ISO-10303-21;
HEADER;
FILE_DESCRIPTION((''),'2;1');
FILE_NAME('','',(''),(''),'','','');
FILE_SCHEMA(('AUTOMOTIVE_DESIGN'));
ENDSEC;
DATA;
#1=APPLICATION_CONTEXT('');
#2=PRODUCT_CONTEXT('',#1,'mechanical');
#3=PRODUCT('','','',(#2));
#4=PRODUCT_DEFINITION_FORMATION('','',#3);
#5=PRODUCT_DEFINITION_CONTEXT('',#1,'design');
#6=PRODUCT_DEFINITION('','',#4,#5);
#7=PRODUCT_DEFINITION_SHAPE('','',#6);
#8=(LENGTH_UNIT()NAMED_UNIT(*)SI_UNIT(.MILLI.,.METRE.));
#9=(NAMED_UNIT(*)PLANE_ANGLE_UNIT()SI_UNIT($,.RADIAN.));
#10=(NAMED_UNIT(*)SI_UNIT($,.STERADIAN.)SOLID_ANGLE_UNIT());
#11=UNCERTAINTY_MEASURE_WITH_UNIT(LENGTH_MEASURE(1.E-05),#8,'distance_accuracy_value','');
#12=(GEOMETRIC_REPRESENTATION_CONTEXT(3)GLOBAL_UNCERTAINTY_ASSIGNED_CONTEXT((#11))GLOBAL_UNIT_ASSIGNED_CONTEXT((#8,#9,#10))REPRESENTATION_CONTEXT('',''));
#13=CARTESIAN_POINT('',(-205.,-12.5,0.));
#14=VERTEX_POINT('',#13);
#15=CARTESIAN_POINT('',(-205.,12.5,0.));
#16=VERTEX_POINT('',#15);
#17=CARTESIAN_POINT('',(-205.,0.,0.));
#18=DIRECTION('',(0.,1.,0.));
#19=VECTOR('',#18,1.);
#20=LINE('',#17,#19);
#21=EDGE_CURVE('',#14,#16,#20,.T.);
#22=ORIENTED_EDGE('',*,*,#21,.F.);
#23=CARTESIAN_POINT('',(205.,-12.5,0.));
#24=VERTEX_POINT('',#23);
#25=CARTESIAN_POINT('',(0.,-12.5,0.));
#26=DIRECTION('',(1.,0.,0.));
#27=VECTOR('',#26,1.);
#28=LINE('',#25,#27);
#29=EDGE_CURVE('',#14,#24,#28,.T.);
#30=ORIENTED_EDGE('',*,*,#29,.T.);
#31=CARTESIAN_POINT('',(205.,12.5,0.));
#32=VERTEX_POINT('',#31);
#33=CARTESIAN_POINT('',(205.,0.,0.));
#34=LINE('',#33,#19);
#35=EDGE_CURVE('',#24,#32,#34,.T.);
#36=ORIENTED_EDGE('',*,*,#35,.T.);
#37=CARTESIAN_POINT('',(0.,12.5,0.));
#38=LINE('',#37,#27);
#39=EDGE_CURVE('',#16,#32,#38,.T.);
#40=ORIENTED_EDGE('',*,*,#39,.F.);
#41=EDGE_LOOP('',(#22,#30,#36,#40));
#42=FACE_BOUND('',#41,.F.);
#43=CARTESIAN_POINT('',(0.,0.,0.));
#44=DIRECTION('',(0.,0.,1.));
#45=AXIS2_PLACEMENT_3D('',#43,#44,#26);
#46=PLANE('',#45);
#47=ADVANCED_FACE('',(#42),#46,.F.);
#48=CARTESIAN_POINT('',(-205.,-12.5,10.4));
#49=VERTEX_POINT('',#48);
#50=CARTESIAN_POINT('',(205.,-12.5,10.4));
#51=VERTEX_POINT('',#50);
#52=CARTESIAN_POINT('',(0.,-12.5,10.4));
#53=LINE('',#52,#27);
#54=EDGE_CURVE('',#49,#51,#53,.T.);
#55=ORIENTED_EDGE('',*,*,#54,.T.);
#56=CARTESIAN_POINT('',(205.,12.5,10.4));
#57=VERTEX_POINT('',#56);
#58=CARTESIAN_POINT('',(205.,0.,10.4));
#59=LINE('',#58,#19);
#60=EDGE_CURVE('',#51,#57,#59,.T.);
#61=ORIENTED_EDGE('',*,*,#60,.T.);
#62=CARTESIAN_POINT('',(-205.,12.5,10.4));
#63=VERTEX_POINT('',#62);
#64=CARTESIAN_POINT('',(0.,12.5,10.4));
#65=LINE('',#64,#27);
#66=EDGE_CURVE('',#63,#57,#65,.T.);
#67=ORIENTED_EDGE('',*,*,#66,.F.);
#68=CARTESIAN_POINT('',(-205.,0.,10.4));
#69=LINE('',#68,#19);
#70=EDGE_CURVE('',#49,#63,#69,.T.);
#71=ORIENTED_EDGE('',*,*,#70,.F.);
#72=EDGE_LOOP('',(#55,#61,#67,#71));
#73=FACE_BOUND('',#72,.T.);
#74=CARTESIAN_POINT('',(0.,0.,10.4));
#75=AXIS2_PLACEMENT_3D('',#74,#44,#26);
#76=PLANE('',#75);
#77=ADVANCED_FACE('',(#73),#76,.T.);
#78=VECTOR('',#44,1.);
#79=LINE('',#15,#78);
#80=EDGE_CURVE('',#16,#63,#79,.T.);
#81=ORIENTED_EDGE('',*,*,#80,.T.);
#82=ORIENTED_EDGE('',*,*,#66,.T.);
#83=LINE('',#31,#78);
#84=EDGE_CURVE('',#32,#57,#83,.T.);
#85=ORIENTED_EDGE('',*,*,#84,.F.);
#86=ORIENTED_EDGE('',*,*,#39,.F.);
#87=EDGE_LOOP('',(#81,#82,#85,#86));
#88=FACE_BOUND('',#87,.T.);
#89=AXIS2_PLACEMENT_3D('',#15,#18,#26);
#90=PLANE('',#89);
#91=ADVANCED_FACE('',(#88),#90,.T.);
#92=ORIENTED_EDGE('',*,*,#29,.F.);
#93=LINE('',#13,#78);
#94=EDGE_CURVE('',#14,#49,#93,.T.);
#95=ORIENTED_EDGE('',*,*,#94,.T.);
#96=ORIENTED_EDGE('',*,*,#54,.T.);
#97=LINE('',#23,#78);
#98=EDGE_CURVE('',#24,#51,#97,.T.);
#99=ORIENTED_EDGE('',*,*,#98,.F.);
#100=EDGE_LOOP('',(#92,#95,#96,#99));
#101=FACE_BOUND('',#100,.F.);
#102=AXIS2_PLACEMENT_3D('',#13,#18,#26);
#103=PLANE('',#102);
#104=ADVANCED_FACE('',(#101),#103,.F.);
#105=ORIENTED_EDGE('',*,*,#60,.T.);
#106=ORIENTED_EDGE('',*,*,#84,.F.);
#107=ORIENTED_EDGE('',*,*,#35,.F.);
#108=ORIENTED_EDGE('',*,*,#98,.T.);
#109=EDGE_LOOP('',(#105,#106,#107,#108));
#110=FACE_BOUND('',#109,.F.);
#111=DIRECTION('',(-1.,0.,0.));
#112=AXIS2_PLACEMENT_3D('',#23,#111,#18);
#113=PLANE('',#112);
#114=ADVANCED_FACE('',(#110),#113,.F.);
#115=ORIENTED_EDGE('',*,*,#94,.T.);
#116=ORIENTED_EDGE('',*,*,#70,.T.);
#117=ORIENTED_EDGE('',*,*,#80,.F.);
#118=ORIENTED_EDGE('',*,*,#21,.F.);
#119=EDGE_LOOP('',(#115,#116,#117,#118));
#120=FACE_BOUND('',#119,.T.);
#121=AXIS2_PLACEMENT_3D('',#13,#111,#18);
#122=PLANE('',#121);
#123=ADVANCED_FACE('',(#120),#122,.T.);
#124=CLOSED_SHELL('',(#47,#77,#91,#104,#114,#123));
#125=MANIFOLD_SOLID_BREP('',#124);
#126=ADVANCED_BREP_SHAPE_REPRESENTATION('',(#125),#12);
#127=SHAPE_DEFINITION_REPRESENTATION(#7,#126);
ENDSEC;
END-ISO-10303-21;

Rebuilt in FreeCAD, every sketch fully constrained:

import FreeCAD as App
import Part
import Sketcher
from FreeCAD import Vector
Q = App.Units.Quantity

doc = App.newDocument("Part")
body = doc.addObject("PartDesign::Body", "Body")

sketch1 = body.newObject("Sketcher::SketchObject", "Sketch")
sketch1.AttachmentSupport = (doc.getObject("XY_Plane"), [""])
sketch1.MapMode = "FlatFace"
sketch1.addGeometry([
    Part.LineSegment(Vector(-205, 12, 0), Vector(-205, -12, 0)),
    Part.LineSegment(Vector(-205, -12, 0), Vector(205, -12, 0)),
    Part.LineSegment(Vector(205, -12, 0), Vector(205, 12, 0)),
    Part.LineSegment(Vector(205, 12, 0), Vector(-205, 12, 0)),
], False)
sketch1.addConstraint([
    Sketcher.Constraint("Coincident", 0, 2, 1, 1),
    Sketcher.Constraint("Coincident", 1, 2, 2, 1),
    Sketcher.Constraint("Coincident", 2, 2, 3, 1),
    Sketcher.Constraint("Coincident", 3, 2, 0, 1),
    Sketcher.Constraint("Vertical", 0),
    Sketcher.Constraint("Horizontal", 1),
    Sketcher.Constraint("Vertical", 2),
    Sketcher.Constraint("Horizontal", 3),
    Sketcher.Constraint("Symmetric", 0, 2, 2, 2, -1, 1),
    Sketcher.Constraint("DistanceX", 1, 1, 1, 2, Q("410 mm")),
    Sketcher.Constraint("DistanceY", 0, 2, 0, 1, Q("25 mm")),
])
pad1 = body.newObject("PartDesign::Pad", "Pad")
pad1.Profile = sketch1
pad1.Length = 10.4

doc.recompute()
